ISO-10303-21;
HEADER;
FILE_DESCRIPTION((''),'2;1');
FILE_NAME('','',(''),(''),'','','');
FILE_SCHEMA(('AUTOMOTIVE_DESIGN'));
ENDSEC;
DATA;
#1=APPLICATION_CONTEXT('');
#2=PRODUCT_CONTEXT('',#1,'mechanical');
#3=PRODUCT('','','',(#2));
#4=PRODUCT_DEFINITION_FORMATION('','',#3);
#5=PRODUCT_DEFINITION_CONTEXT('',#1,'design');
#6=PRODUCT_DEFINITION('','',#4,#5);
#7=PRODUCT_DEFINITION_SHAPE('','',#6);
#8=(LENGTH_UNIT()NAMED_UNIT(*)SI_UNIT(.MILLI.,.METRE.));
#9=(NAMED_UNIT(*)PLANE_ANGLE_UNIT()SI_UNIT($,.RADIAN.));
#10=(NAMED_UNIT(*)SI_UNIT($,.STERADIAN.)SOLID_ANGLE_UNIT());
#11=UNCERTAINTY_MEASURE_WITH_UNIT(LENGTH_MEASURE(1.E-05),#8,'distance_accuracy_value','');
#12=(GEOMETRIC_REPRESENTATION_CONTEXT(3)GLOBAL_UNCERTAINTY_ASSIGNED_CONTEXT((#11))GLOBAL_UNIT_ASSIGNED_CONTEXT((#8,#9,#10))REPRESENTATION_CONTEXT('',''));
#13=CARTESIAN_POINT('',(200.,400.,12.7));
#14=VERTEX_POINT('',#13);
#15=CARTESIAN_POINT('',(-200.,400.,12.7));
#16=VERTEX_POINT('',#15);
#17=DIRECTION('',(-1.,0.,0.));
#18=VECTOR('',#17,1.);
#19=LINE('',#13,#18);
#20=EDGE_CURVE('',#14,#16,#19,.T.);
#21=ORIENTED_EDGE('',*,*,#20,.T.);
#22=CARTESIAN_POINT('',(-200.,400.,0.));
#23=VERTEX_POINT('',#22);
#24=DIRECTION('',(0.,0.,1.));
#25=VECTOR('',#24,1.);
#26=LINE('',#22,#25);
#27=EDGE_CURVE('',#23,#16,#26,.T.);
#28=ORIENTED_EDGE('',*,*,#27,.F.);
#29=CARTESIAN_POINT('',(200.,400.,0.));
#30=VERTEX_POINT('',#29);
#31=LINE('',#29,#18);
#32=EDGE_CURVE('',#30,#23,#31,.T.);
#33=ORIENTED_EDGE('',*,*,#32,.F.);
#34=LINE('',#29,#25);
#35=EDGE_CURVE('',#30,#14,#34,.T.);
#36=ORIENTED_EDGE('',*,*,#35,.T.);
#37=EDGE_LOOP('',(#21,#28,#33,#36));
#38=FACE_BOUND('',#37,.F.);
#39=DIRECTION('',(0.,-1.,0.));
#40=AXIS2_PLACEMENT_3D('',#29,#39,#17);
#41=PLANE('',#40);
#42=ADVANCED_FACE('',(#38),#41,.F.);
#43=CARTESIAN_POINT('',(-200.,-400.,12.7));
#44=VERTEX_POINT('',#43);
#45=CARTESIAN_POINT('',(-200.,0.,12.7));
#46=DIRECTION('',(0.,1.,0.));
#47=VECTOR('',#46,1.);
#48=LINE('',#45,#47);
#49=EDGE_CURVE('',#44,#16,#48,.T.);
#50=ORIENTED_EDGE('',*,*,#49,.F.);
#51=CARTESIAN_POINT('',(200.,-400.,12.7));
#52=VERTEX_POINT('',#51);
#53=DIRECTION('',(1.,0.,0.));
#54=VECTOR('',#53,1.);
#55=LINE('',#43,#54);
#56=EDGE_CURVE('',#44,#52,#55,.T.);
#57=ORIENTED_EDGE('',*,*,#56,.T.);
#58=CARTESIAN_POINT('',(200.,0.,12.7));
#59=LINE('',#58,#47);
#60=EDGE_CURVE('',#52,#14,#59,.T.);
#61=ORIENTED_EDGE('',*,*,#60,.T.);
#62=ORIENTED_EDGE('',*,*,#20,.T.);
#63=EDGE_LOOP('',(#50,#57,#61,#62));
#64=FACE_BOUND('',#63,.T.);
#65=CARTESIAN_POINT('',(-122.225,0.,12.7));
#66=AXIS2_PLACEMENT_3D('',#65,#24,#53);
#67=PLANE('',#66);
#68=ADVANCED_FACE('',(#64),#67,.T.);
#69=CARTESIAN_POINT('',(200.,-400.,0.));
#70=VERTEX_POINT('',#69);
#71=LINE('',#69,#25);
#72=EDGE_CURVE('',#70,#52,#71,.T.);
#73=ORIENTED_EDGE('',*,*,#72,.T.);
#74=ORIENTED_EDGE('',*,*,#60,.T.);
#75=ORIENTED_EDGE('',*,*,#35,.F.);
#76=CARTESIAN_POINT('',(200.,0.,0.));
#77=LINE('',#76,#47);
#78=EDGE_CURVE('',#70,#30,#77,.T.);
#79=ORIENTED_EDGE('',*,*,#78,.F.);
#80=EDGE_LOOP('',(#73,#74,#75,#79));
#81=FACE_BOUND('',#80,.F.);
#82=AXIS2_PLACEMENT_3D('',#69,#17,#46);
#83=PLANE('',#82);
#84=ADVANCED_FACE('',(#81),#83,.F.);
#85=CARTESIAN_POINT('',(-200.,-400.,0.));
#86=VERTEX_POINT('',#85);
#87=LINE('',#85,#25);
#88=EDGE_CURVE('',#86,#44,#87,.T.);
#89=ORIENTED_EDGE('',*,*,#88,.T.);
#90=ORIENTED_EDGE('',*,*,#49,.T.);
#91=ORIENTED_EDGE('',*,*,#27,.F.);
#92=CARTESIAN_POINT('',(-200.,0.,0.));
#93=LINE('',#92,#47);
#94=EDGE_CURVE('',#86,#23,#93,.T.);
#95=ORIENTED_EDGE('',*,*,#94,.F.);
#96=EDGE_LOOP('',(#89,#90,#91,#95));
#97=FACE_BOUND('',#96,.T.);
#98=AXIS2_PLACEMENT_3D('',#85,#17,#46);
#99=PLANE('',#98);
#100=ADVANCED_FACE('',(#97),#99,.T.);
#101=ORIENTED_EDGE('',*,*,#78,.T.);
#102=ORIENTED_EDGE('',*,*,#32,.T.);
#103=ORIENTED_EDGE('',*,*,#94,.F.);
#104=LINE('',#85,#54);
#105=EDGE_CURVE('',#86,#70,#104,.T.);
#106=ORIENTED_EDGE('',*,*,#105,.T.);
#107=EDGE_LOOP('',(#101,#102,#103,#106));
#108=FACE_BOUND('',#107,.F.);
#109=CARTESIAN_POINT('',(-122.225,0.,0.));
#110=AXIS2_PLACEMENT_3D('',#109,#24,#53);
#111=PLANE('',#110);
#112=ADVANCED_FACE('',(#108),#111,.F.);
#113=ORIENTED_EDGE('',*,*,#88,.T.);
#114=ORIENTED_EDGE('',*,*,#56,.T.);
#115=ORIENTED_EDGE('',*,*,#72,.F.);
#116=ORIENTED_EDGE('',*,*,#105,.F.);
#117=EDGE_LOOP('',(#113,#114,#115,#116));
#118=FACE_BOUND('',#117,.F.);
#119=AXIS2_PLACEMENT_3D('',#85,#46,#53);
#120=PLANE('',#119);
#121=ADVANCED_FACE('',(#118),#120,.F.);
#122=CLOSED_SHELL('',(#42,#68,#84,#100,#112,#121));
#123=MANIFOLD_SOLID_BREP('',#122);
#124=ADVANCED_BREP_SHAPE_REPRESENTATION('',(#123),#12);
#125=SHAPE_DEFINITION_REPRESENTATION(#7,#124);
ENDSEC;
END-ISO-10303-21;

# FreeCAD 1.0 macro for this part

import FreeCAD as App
import Part
import Sketcher
Q = App.Units.Quantity

doc = App.newDocument("Part")
params = doc.addObject("Spreadsheet::Sheet", "Params")
for row, (alias, value) in enumerate([
    ("sketch1_width", "400 mm"),
    ("sketch1_height", "800 mm"),
    ("pad1_length", "12.7 mm"),
], start=1):
    params.set(f"A{row}", alias)
    params.set(f"B{row}", "=" + value)
    params.setAlias(f"B{row}", alias)

body = doc.addObject("PartDesign::Body", "Body")

sketch1 = body.newObject("Sketcher::SketchObject", "Sketch")
sketch1.AttachmentSupport = (doc.getObject("XY_Plane"), [""])
sketch1.MapMode = "FlatFace"
sketch1.addGeometry(Part.LineSegment(App.Vector(-200, 400, 0), App.Vector(-200, -400, 0)), False)
sketch1.addGeometry(Part.LineSegment(App.Vector(-200, -400, 0), App.Vector(200, -400, 0)), False)
sketch1.addGeometry(Part.LineSegment(App.Vector(200, -400, 0), App.Vector(200, 400, 0)), False)
sketch1.addGeometry(Part.LineSegment(App.Vector(200, 400, 0), App.Vector(-200, 400, 0)), False)
sketch1.addConstraint(Sketcher.Constraint("Coincident", 0, 2, 1, 1))
sketch1.addConstraint(Sketcher.Constraint("Coincident", 1, 2, 2, 1))
sketch1.addConstraint(Sketcher.Constraint("Coincident", 2, 2, 3, 1))
sketch1.addConstraint(Sketcher.Constraint("Coincident", 3, 2, 0, 1))
sketch1.addConstraint(Sketcher.Constraint("Vertical", 0))
sketch1.addConstraint(Sketcher.Constraint("Horizontal", 1))
sketch1.addConstraint(Sketcher.Constraint("Vertical", 2))
sketch1.addConstraint(Sketcher.Constraint("Horizontal", 3))
sketch1.addConstraint(Sketcher.Constraint("Symmetric", 0, 2, 2, 2, -1, 1))
sketch1.addConstraint(Sketcher.Constraint("DistanceX", 1, 1, 1, 2, Q("400 mm")))
sketch1.addConstraint(Sketcher.Constraint("DistanceY", 0, 2, 0, 1, Q("800 mm")))
sketch1.setExpression("Constraints[9]", "Params.sketch1_width")
sketch1.setExpression("Constraints[10]", "Params.sketch1_height")
pad1 = body.newObject("PartDesign::Pad", "Pad")
pad1.Profile = sketch1
pad1.setExpression("Length", "Params.pad1_length")

doc.recompute()
